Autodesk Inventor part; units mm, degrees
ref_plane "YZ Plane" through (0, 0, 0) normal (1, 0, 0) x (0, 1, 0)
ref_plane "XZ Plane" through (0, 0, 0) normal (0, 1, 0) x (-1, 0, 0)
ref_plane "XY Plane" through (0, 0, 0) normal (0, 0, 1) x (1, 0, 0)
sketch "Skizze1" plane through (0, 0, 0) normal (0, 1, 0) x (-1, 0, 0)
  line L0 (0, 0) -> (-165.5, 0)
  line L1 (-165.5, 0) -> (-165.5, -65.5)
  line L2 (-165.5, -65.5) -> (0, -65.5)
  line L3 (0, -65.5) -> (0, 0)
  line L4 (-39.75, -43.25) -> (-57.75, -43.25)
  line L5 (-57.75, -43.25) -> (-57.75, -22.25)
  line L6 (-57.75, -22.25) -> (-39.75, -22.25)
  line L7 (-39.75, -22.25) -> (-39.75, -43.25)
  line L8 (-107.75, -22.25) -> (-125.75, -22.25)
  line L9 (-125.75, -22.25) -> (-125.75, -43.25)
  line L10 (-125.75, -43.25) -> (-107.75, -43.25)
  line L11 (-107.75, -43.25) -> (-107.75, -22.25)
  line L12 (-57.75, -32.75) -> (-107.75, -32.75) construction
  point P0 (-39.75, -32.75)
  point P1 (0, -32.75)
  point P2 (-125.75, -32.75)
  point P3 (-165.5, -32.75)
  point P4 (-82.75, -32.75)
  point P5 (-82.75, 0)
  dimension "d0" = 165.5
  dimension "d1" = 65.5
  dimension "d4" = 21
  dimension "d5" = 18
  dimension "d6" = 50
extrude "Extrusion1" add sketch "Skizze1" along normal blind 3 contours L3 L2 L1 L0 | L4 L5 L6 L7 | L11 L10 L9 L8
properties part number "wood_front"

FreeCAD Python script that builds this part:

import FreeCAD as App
import Part
import Sketcher
from FreeCAD import Vector
Q = App.Units.Quantity


def add_polygon(sketch, points):
    """Adds a closed chain of lines whose ends are joined by coincident constraints."""
    first, n = sketch.GeometryCount, len(points)
    for a, b in zip(points, points[1:] + points[:1]):
        sketch.addGeometry(Part.LineSegment(App.Vector(*a, 0), App.Vector(*b, 0)), False)
    for i in range(n):
        sketch.addConstraint(Sketcher.Constraint("Coincident", first + i, 2, first + (i + 1) % n, 1))

doc = App.newDocument("Part")
params = doc.addObject("Spreadsheet::Sheet", "Params")
for row, (alias, value) in enumerate([
    ("sketch1_width", "165.5 mm"),
    ("sketch1_height", "65.5 mm"),
    ("pad1_length", "3 mm"),
], start=1):
    params.set(f"A{row}", alias)
    params.set(f"B{row}", "=" + value)
    params.setAlias(f"B{row}", alias)

body = doc.addObject("PartDesign::Body", "Body")

# Sketch on XZ plane
sketch1 = body.newObject("Sketcher::SketchObject", "Sketch")
sketch1.AttachmentSupport = (doc.getObject("XZ_Plane"), [""])
sketch1.MapMode = "FlatFace"
add_polygon(sketch1, [(0, -65.5), (0, 0), (165.5, 0), (165.5, -65.5)])  # lines 0-3
sketch1.addConstraint([
    Sketcher.Constraint("Vertical", 0),
    Sketcher.Constraint("Horizontal", 1),
    Sketcher.Constraint("Vertical", 2),
    Sketcher.Constraint("Horizontal", 3),
    Sketcher.Constraint("Coincident", 0, 2, -1, 1),
    Sketcher.Constraint("DistanceX", 1, 1, 1, 2, Q("165.5 mm")),
    Sketcher.Constraint("DistanceY", 0, 1, 0, 2, Q("65.5 mm")),
])
sketch1.setExpression("Constraints[9]", "Params.sketch1_width")
sketch1.setExpression("Constraints[10]", "Params.sketch1_height")
pad1 = body.newObject("PartDesign::Pad", "Pad")
pad1.Profile = sketch1
pad1.setExpression("Length", "Params.pad1_length")
pad1.Reversed = True

doc.recompute()
